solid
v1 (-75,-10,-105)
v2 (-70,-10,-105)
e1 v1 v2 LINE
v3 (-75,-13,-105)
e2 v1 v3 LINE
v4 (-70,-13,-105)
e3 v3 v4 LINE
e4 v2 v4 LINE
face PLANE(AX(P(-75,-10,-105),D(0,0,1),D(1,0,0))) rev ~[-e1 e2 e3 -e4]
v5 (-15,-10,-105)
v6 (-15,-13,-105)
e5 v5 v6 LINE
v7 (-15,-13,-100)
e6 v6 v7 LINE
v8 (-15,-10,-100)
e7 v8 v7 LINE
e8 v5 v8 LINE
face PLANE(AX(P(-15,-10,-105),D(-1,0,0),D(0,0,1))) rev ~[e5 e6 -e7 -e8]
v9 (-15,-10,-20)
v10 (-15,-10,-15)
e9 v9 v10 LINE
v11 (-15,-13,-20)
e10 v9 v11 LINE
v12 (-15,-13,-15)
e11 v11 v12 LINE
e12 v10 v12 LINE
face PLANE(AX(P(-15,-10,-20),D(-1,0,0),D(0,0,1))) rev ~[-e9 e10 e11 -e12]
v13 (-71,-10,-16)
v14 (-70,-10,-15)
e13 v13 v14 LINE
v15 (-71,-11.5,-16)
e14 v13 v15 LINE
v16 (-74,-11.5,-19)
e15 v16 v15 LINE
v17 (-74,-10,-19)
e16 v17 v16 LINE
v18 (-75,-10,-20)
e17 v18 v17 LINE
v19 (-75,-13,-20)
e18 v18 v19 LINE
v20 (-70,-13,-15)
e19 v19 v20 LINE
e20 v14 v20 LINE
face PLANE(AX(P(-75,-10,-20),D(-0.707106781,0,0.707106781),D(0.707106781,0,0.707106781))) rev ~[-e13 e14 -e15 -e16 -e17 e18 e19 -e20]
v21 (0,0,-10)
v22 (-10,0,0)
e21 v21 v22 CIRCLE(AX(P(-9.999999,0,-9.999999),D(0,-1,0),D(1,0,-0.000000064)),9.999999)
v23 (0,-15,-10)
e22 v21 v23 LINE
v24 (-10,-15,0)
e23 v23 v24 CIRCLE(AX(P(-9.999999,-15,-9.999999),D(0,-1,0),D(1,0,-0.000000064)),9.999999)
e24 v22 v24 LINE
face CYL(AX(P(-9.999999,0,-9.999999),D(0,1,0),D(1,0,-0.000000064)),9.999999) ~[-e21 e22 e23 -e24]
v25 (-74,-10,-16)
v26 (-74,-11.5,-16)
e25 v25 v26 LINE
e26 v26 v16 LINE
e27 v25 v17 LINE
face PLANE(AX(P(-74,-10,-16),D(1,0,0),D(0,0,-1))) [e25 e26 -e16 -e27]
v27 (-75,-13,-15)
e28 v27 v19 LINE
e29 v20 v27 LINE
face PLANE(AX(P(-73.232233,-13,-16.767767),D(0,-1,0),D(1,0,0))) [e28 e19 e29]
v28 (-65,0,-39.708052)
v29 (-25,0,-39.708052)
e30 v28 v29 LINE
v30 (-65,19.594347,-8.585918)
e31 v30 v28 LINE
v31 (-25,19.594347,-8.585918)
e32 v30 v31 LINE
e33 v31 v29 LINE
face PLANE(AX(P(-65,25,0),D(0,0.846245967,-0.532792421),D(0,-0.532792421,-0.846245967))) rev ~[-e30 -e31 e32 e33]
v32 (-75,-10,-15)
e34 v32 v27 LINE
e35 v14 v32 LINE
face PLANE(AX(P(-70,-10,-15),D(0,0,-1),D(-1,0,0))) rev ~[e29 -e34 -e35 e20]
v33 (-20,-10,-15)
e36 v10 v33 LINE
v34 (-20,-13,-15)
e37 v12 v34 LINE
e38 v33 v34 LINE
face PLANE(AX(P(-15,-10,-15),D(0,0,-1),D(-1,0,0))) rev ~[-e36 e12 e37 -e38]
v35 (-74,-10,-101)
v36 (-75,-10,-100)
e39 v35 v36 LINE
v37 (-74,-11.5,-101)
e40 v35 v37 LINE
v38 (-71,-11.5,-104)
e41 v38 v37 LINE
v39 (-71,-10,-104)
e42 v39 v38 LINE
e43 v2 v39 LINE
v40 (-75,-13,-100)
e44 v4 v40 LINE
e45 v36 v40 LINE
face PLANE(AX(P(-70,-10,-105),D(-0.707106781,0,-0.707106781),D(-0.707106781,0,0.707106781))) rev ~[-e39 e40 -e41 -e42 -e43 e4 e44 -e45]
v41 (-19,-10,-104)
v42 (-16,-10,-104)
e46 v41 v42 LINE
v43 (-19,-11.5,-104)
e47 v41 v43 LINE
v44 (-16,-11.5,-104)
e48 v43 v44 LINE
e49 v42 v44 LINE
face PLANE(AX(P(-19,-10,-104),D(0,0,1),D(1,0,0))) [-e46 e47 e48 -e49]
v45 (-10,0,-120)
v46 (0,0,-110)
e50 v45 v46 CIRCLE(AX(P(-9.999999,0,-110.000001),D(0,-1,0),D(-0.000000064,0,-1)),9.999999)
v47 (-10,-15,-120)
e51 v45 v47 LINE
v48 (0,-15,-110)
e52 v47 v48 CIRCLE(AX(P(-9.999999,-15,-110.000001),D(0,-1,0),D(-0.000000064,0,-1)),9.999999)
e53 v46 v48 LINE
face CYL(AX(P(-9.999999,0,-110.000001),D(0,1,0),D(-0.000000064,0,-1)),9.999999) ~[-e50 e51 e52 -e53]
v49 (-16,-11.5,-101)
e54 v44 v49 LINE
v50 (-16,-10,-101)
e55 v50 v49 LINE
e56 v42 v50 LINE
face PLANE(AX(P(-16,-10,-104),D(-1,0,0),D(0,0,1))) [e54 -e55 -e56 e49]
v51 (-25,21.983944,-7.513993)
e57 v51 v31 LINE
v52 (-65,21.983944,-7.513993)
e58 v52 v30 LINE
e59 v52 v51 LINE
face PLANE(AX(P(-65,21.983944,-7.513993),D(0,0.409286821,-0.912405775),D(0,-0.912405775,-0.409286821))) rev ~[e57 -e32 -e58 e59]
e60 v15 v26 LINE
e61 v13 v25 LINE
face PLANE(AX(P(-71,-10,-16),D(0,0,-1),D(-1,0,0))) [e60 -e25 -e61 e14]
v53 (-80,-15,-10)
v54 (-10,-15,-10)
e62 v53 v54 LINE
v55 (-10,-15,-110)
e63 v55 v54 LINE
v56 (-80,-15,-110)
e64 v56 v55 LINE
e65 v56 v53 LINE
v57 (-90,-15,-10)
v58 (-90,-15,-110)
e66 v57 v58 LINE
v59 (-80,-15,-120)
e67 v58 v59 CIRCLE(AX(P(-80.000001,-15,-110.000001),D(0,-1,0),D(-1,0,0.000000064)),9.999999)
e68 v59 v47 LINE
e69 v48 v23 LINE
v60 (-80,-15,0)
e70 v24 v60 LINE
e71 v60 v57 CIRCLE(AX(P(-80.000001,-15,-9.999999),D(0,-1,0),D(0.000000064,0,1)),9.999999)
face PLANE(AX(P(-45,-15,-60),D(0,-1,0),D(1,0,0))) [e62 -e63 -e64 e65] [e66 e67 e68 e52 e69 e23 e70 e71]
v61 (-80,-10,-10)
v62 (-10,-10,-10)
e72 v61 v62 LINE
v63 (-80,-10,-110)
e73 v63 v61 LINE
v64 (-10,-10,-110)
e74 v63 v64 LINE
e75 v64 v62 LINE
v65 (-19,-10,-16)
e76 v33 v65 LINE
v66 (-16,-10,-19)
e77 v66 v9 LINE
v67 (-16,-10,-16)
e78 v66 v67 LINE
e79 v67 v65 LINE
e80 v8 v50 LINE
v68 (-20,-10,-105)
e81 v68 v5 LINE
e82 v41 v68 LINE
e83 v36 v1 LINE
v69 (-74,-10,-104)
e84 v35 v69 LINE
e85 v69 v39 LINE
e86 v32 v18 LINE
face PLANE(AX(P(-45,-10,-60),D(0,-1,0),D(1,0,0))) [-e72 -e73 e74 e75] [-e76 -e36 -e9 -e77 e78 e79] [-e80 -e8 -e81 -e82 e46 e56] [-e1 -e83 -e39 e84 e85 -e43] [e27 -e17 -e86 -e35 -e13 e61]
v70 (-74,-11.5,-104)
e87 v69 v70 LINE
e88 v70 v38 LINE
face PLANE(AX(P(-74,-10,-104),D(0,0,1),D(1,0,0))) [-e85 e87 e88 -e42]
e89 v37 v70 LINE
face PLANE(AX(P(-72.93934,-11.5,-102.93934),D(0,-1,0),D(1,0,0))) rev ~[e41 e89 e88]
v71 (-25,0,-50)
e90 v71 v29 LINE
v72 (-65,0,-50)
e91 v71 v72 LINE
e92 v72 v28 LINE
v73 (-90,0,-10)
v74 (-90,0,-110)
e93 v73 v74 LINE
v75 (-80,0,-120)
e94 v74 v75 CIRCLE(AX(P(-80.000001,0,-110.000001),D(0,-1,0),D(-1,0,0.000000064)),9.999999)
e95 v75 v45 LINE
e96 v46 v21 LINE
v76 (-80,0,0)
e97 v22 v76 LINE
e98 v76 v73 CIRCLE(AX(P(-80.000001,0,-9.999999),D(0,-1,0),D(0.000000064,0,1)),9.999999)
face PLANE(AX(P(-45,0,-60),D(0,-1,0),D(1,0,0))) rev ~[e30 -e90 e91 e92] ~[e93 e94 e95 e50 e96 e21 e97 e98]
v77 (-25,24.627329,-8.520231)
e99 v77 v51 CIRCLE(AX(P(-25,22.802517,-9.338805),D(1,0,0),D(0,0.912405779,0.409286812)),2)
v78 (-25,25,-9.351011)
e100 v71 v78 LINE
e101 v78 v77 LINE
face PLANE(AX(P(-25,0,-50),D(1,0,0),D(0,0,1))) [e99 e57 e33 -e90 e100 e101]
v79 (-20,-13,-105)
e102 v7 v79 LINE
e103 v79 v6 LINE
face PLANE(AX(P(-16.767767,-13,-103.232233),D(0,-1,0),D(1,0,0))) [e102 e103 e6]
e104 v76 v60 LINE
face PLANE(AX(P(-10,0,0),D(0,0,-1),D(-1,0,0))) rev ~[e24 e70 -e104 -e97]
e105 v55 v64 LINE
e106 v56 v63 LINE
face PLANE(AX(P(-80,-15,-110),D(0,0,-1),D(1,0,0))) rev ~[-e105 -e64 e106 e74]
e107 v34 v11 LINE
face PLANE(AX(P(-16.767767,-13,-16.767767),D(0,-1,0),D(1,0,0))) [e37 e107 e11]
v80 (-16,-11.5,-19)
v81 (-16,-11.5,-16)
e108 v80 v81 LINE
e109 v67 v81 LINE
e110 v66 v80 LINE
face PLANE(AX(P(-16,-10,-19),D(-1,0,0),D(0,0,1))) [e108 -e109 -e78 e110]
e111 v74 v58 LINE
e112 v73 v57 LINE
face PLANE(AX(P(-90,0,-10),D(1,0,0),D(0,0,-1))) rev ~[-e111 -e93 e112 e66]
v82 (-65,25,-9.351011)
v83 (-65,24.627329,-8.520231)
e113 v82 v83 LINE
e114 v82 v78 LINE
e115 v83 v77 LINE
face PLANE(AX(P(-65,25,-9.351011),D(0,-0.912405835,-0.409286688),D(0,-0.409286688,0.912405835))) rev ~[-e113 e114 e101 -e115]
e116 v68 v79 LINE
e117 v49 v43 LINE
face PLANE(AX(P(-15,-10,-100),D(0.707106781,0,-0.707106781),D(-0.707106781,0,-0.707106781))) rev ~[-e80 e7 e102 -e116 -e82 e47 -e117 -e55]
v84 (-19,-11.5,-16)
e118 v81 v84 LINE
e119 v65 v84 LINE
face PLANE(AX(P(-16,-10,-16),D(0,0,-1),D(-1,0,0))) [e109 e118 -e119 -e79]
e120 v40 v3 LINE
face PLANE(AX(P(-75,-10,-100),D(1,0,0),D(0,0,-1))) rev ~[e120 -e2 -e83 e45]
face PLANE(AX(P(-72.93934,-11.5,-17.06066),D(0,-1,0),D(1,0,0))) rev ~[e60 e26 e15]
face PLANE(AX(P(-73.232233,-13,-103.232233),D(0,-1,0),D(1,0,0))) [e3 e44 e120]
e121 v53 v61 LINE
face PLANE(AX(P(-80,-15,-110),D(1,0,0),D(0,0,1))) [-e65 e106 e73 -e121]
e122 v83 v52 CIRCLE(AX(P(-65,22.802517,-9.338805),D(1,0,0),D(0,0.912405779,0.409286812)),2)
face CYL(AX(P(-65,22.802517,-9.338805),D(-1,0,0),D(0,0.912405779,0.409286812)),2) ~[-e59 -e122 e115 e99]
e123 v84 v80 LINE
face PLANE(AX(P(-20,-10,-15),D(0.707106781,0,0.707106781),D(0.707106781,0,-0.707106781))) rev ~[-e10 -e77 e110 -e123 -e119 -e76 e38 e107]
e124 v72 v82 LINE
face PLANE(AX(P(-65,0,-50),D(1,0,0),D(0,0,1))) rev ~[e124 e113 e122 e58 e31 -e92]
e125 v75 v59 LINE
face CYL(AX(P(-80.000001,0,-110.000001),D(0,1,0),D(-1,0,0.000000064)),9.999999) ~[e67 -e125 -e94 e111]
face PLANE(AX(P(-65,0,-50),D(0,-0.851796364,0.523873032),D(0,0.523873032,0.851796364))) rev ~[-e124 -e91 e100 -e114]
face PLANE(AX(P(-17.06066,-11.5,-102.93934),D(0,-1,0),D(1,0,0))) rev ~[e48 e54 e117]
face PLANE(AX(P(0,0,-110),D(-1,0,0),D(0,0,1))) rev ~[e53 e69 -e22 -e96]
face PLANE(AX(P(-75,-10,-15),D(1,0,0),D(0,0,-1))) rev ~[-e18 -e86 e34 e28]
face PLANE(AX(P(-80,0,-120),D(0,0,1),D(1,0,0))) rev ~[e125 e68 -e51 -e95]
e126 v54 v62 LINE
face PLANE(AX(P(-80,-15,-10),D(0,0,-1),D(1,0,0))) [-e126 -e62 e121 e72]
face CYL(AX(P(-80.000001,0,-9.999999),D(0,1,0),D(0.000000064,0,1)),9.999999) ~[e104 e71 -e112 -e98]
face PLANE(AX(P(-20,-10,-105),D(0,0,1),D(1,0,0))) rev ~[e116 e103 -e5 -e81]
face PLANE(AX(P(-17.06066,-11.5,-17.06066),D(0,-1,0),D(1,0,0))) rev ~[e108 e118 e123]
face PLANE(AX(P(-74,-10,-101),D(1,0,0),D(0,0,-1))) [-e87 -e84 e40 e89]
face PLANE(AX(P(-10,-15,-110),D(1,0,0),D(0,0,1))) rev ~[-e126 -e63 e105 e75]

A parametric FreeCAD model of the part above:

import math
import FreeCAD as App
import Part
import Sketcher

V = App.Vector


def add_polygon(sketch, points):
    """Adds a closed chain of lines whose ends are joined by coincident constraints."""
    first, n = sketch.GeometryCount, len(points)
    for a, b in zip(points, points[1:] + points[:1]):
        sketch.addGeometry(Part.LineSegment(App.Vector(*a, 0), App.Vector(*b, 0)), False)
    for i in range(n):
        sketch.addConstraint(Sketcher.Constraint("Coincident", first + i, 2, first + (i + 1) % n, 1))

doc = App.newDocument("Part")
body = doc.addObject("PartDesign::Body", "Body")

# Sketch on XZ plane
sketch1 = body.newObject("Sketcher::SketchObject", "Sketch")
sketch1.AttachmentSupport = (doc.getObject("XZ_Plane"), [""])
sketch1.MapMode = "FlatFace"
sketch1.addGeometry(Part.ArcOfCircle(Part.Circle(V(-80, -10, 0), V(0, 0, 1), 10), math.radians(90), math.radians(180)), False)
sketch1.addGeometry(Part.LineSegment(V(-90, -10, 0), V(-90, -110, 0)), False)
sketch1.addGeometry(Part.ArcOfCircle(Part.Circle(V(-80, -110, 0), V(0, 0, 1), 10), math.radians(180), math.radians(270)), False)
sketch1.addGeometry(Part.LineSegment(V(-80, -120, 0), V(-10, -120, 0)), False)
sketch1.addGeometry(Part.ArcOfCircle(Part.Circle(V(-10, -110, 0), V(0, 0, 1), 10), math.radians(-90), math.radians(0)), False)
sketch1.addGeometry(Part.LineSegment(V(0, -110, 0), V(0, -10, 0)), False)
sketch1.addGeometry(Part.ArcOfCircle(Part.Circle(V(-10, -10, 0), V(0, 0, 1), 10), math.radians(0), math.radians(90)), False)
sketch1.addGeometry(Part.LineSegment(V(-10, 0, 0), V(-80, 0, 0)), False)
sketch1.addConstraint(Sketcher.Constraint("Tangent", 0, 2, 1, 1))
sketch1.addConstraint(Sketcher.Constraint("Tangent", 1, 2, 2, 1))
sketch1.addConstraint(Sketcher.Constraint("Tangent", 2, 2, 3, 1))
sketch1.addConstraint(Sketcher.Constraint("Tangent", 3, 2, 4, 1))
sketch1.addConstraint(Sketcher.Constraint("Tangent", 4, 2, 5, 1))
sketch1.addConstraint(Sketcher.Constraint("Tangent", 5, 2, 6, 1))
sketch1.addConstraint(Sketcher.Constraint("Tangent", 6, 2, 7, 1))
sketch1.addConstraint(Sketcher.Constraint("Tangent", 7, 2, 0, 1))
sketch1.addConstraint(Sketcher.Constraint("Vertical", 1))
sketch1.addConstraint(Sketcher.Constraint("Horizontal", 3))
sketch1.addConstraint(Sketcher.Constraint("Vertical", 5))
sketch1.addConstraint(Sketcher.Constraint("Horizontal", 7))
sketch1.addConstraint(Sketcher.Constraint("Equal", 0, 2))
sketch1.addConstraint(Sketcher.Constraint("Equal", 2, 4))
sketch1.addConstraint(Sketcher.Constraint("Equal", 4, 6))
sketch1.addConstraint(Sketcher.Constraint("PointOnObject", 4, 2, -2))
sketch1.addConstraint(Sketcher.Constraint("PointOnObject", 6, 2, -1))
sketch1.addConstraint(Sketcher.Constraint("Radius", 0, 9.999999))
sketch1.addConstraint(Sketcher.Constraint("DistanceX", 3, 1, 3, 2, 70.0))
sketch1.addConstraint(Sketcher.Constraint("DistanceY", 1, 2, 1, 1, 100.0))
pad1 = body.newObject("PartDesign::Pad", "Pad")
pad1.Profile = sketch1
pad1.Length = 15

# Sketch on XZ plane
sketch2 = body.newObject("Sketcher::SketchObject", "Sketch001")
sketch2.AttachmentSupport = (doc.getObject("XZ_Plane"), [""])
sketch2.MapMode = "FlatFace"
sketch2.AttachmentOffset = App.Placement(V(0, 0, 15), App.Rotation())
add_polygon(sketch2, [(-80, -10), (-80, -110), (-10, -110), (-10, -10)])  # lines 0-3
sketch2.addConstraint(Sketcher.Constraint("Vertical", 0))
sketch2.addConstraint(Sketcher.Constraint("Horizontal", 1))
sketch2.addConstraint(Sketcher.Constraint("Vertical", 2))
sketch2.addConstraint(Sketcher.Constraint("Horizontal", 3))
sketch2.addConstraint(Sketcher.Constraint("DistanceX", 1, 1, 1, 2, 70.0))
sketch2.addConstraint(Sketcher.Constraint("DistanceY", 0, 2, 0, 1, 100.0))
sketch2.addConstraint(Sketcher.Constraint("DistanceX", 0, 2, -1, 1, 80.0))
sketch2.addConstraint(Sketcher.Constraint("DistanceY", 0, 2, -1, 1, 110.0))
pocket1 = body.newObject("PartDesign::Pocket", "Pocket")
pocket1.Profile = sketch2
pocket1.Length = 5

# Sketch on XZ plane
sketch3 = body.newObject("Sketcher::SketchObject", "Sketch002")
sketch3.AttachmentSupport = (doc.getObject("XZ_Plane"), [""])
sketch3.MapMode = "FlatFace"
add_polygon(sketch3, [(-25, 0), (-25, -50), (-65, -50), (-65, 0)])  # lines 0-3
sketch3.addConstraint(Sketcher.Constraint("Vertical", 0))
sketch3.addConstraint(Sketcher.Constraint("Horizontal", 1))
sketch3.addConstraint(Sketcher.Constraint("Vertical", 2))
sketch3.addConstraint(Sketcher.Constraint("Horizontal", 3))
sketch3.addConstraint(Sketcher.Constraint("PointOnObject", 2, 2, -1))
sketch3.addConstraint(Sketcher.Constraint("DistanceX", 1, 2, 1, 1, 40.0))
sketch3.addConstraint(Sketcher.Constraint("DistanceY", 0, 2, 0, 1, 50.0))
sketch3.addConstraint(Sketcher.Constraint("DistanceX", 0, 2, -1, 1, 25.0))
pad2 = body.newObject("PartDesign::Pad", "Pad001")
pad2.Profile = sketch3
pad2.Length = 25
pad2.Reversed = True

# Sketch on YZ plane
sketch4 = body.newObject("Sketcher::SketchObject", "Sketch003")
sketch4.AttachmentSupport = (doc.getObject("YZ_Plane"), [""])
sketch4.MapMode = "FlatFace"
sketch4.AttachmentOffset = App.Placement(V(0, 0, -65), App.Rotation())
add_polygon(sketch4, [(0, -40), (0, 0), (25, 0)])  # lines 0-2
add_polygon(sketch4, [(25, -9), (25, -50), (0, -50)])  # lines 3-5
sketch4.addConstraint(Sketcher.Constraint("Vertical", 0))
sketch4.addConstraint(Sketcher.Constraint("Horizontal", 1))
sketch4.addConstraint(Sketcher.Constraint("Vertical", 3))
sketch4.addConstraint(Sketcher.Constraint("Horizontal", 4))
sketch4.addConstraint(Sketcher.Constraint("Coincident", 0, 2, -1, 1))
sketch4.addConstraint(Sketcher.Constraint("PointOnObject", 4, 2, -2))
sketch4.addConstraint(Sketcher.Constraint("Vertical", 1, 2, 3, 2))
sketch4.addConstraint(Sketcher.Constraint("DistanceX", 1, 1, 1, 2, 25.0))
sketch4.addConstraint(Sketcher.Constraint("DistanceY", 3, 2, -1, 1, 50.0))
sketch4.addConstraint(Sketcher.Constraint("DistanceY", 3, 2, 3, 1, 40.648989))
sketch4.addConstraint(Sketcher.Constraint("Distance", 2, 46.922589))
pocket2 = body.newObject("PartDesign::Pocket", "Pocket001")
pocket2.Profile = sketch4
pocket2.Length = 40
pocket2.Reversed = True

# Sketch on YZ plane
sketch5 = body.newObject("Sketcher::SketchObject", "Sketch004")
sketch5.AttachmentSupport = (doc.getObject("YZ_Plane"), [""])
sketch5.MapMode = "FlatFace"
sketch5.AttachmentOffset = App.Placement(V(0, 0, -65), App.Rotation())
sketch5.addGeometry(Part.LineSegment(V(19.6, -8.6, 0), V(25, 0, 0)), False)
sketch5.addGeometry(Part.LineSegment(V(25, 0, 0), V(25, -9.4, 0)), False)
sketch5.addGeometry(Part.LineSegment(V(25, -9.4, 0), V(24.6, -8.5, 0)), False)
sketch5.addGeometry(Part.ArcOfCircle(Part.Circle(V(22.8, -9.3, 0), V(0, 0, 1), 2), math.radians(24), math.radians(114)), False)
sketch5.addGeometry(Part.LineSegment(V(22, -7.5, 0), V(19.6, -8.6, 0)), False)
sketch5.addConstraint(Sketcher.Constraint("Coincident", 0, 2, 1, 1))
sketch5.addConstraint(Sketcher.Constraint("Coincident", 1, 2, 2, 1))
sketch5.addConstraint(Sketcher.Constraint("Tangent", 2, 2, 3, 1))
sketch5.addConstraint(Sketcher.Constraint("Tangent", 3, 2, 4, 1))
sketch5.addConstraint(Sketcher.Constraint("Coincident", 4, 2, 0, 1))
sketch5.addConstraint(Sketcher.Constraint("Vertical", 1))
sketch5.addConstraint(Sketcher.Constraint("PointOnObject", 0, 2, -1))
sketch5.addConstraint(Sketcher.Constraint("Perpendicular", 2, 4))
sketch5.addConstraint(Sketcher.Constraint("Radius", 3, 2.0))
sketch5.addConstraint(Sketcher.Constraint("DistanceX", -1, 1, 0, 2, 25.0))
sketch5.addConstraint(Sketcher.Constraint("DistanceY", 1, 2, 1, 1, 9.351011))
sketch5.addConstraint(Sketcher.Constraint("Distance", 0, 10.145889))
sketch5.addConstraint(Sketcher.Constraint("DistanceX", -1, 1, 2, 2, 24.627329))
sketch5.addConstraint(Sketcher.Constraint("DistanceY", 2, 2, -1, 1, 8.520231))
pocket3 = body.newObject("PartDesign::Pocket", "Pocket002")
pocket3.Profile = sketch5
pocket3.Length = 40
pocket3.Reversed = True

# Sketch on XZ plane
sketch6 = body.newObject("Sketcher::SketchObject", "Sketch005")
sketch6.AttachmentSupport = (doc.getObject("XZ_Plane"), [""])
sketch6.MapMode = "FlatFace"
sketch6.AttachmentOffset = App.Placement(V(0, 0, 10), App.Rotation())
add_polygon(sketch6, [(-20, -15), (-15, -20), (-15, -15)])  # lines 0-2
add_polygon(sketch6, [(-70, -105), (-75, -100), (-75, -105)])  # lines 3-5
add_polygon(sketch6, [(-75, -20), (-70, -15), (-75, -15)])  # lines 6-8
add_polygon(sketch6, [(-15, -100), (-20, -105), (-15, -105)])  # lines 9-11
sketch6.addConstraint(Sketcher.Constraint("Vertical", 1))
sketch6.addConstraint(Sketcher.Constraint("Horizontal", 2))
sketch6.addConstraint(Sketcher.Constraint("Vertical", 4))
sketch6.addConstraint(Sketcher.Constraint("Horizontal", 5))
sketch6.addConstraint(Sketcher.Constraint("Horizontal", 7))
sketch6.addConstraint(Sketcher.Constraint("Vertical", 8))
sketch6.addConstraint(Sketcher.Constraint("Horizontal", 10))
sketch6.addConstraint(Sketcher.Constraint("Vertical", 11))
sketch6.addConstraint(Sketcher.Constraint("Parallel", 0, 3))
sketch6.addConstraint(Sketcher.Constraint("Perpendicular", 3, 6))
sketch6.addConstraint(Sketcher.Constraint("Parallel", 6, 9))
sketch6.addConstraint(Sketcher.Constraint("Horizontal", 2, 2, 6, 2))
sketch6.addConstraint(Sketcher.Constraint("Horizontal", 0, 2, 8, 2))
sketch6.addConstraint(Sketcher.Constraint("Horizontal", 5, 2, 9, 2))
sketch6.addConstraint(Sketcher.Constraint("Horizontal", 3, 2, 11, 2))
sketch6.addConstraint(Sketcher.Constraint("Vertical", 5, 2, 6, 2))
sketch6.addConstraint(Sketcher.Constraint("Vertical", 4, 2, 7, 2))
sketch6.addConstraint(Sketcher.Constraint("Vertical", 2, 2, 9, 2))
sketch6.addConstraint(Sketcher.Constraint("Vertical", 1, 2, 10, 2))
sketch6.addConstraint(Sketcher.Constraint("DistanceX", 2, 2, 2, 1, 5.0))
sketch6.addConstraint(Sketcher.Constraint("DistanceX", 0, 2, -1, 1, 15.0))
sketch6.addConstraint(Sketcher.Constraint("DistanceY", 0, 2, -1, 1, 20.0))
sketch6.addConstraint(Sketcher.Constraint("DistanceX", 3, 2, -1, 1, 75.0))
sketch6.addConstraint(Sketcher.Constraint("DistanceY", 3, 2, -1, 1, 100.0))
pad3 = body.newObject("PartDesign::Pad", "Pad002")
pad3.Profile = sketch6
pad3.Length = 3

# Sketch on XZ plane
sketch7 = body.newObject("Sketcher::SketchObject", "Sketch006")
sketch7.AttachmentSupport = (doc.getObject("XZ_Plane"), [""])
sketch7.MapMode = "FlatFace"
sketch7.AttachmentOffset = App.Placement(V(0, 0, 10), App.Rotation())
add_polygon(sketch7, [(-74, -19), (-71, -16), (-74, -16)])  # lines 0-2
add_polygon(sketch7, [(-19, -16), (-16, -19), (-16, -16)])  # lines 3-5
add_polygon(sketch7, [(-71, -104), (-74, -101), (-74, -104)])  # lines 6-8
add_polygon(sketch7, [(-16, -101), (-19, -104), (-16, -104)])  # lines 9-11
sketch7.addConstraint(Sketcher.Constraint("Horizontal", 1))
sketch7.addConstraint(Sketcher.Constraint("Vertical", 2))
sketch7.addConstraint(Sketcher.Constraint("Vertical", 4))
sketch7.addConstraint(Sketcher.Constraint("Horizontal", 5))
sketch7.addConstraint(Sketcher.Constraint("Vertical", 7))
sketch7.addConstraint(Sketcher.Constraint("Horizontal", 8))
sketch7.addConstraint(Sketcher.Constraint("Horizontal", 10))
sketch7.addConstraint(Sketcher.Constraint("Vertical", 11))
sketch7.addConstraint(Sketcher.Constraint("Perpendicular", 0, 3))
sketch7.addConstraint(Sketcher.Constraint("Parallel", 3, 6))
sketch7.addConstraint(Sketcher.Constraint("Perpendicular", 6, 9))
sketch7.addConstraint(Sketcher.Constraint("Horizontal", 2, 2, 3, 2))
sketch7.addConstraint(Sketcher.Constraint("Horizontal", 1, 2, 4, 2))
sketch7.addConstraint(Sketcher.Constraint("Horizontal", 8, 2, 9, 2))
sketch7.addConstraint(Sketcher.Constraint("Horizontal", 6, 2, 11, 2))
sketch7.addConstraint(Sketcher.Constraint("Vertical", 2, 2, 6, 2))
sketch7.addConstraint(Sketcher.Constraint("Vertical", 0, 2, 8, 2))
sketch7.addConstraint(Sketcher.Constraint("Vertical", 5, 2, 9, 2))
sketch7.addConstraint(Sketcher.Constraint("Vertical", 4, 2, 10, 2))
sketch7.addConstraint(Sketcher.Constraint("DistanceX", 1, 2, 1, 1, 3.0))
sketch7.addConstraint(Sketcher.Constraint("DistanceX", 0, 2, -1, 1, 71.0))
sketch7.addConstraint(Sketcher.Constraint("DistanceY", 0, 2, -1, 1, 16.0))
sketch7.addConstraint(Sketcher.Constraint("DistanceX", 3, 2, -1, 1, 16.0))
sketch7.addConstraint(Sketcher.Constraint("DistanceY", 6, 2, -1, 1, 101.0))
pocket4 = body.newObject("PartDesign::Pocket", "Pocket003")
pocket4.Profile = sketch7
pocket4.Length = 1.5
pocket4.Reversed = True

# Sketch on XZ plane
sketch8 = body.newObject("Sketcher::SketchObject", "Sketch007")
sketch8.AttachmentSupport = (doc.getObject("XZ_Plane"), [""])
sketch8.MapMode = "FlatFace"
sketch8.AttachmentOffset = App.Placement(V(0, 0, 10), App.Rotation())
add_polygon(sketch8, [(-74, -19), (-71, -16), (-74, -16)])  # lines 0-2
add_polygon(sketch8, [(-19, -16), (-16, -19), (-16, -16)])  # lines 3-5
add_polygon(sketch8, [(-71, -104), (-74, -101), (-74, -104)])  # lines 6-8
add_polygon(sketch8, [(-16, -101), (-19, -104), (-16, -104)])  # lines 9-11
sketch8.addConstraint(Sketcher.Constraint("Horizontal", 1))
sketch8.addConstraint(Sketcher.Constraint("Vertical", 2))
sketch8.addConstraint(Sketcher.Constraint("Vertical", 4))
sketch8.addConstraint(Sketcher.Constraint("Horizontal", 5))
sketch8.addConstraint(Sketcher.Constraint("Vertical", 7))
sketch8.addConstraint(Sketcher.Constraint("Horizontal", 8))
sketch8.addConstraint(Sketcher.Constraint("Horizontal", 10))
sketch8.addConstraint(Sketcher.Constraint("Vertical", 11))
sketch8.addConstraint(Sketcher.Constraint("Perpendicular", 0, 3))
sketch8.addConstraint(Sketcher.Constraint("Parallel", 3, 6))
sketch8.addConstraint(Sketcher.Constraint("Perpendicular", 6, 9))
sketch8.addConstraint(Sketcher.Constraint("Horizontal", 2, 2, 3, 2))
sketch8.addConstraint(Sketcher.Constraint("Horizontal", 1, 2, 4, 2))
sketch8.addConstraint(Sketcher.Constraint("Horizontal", 8, 2, 9, 2))
sketch8.addConstraint(Sketcher.Constraint("Horizontal", 6, 2, 11, 2))
sketch8.addConstraint(Sketcher.Constraint("Vertical", 2, 2, 6, 2))
sketch8.addConstraint(Sketcher.Constraint("Vertical", 0, 2, 8, 2))
sketch8.addConstraint(Sketcher.Constraint("Vertical", 5, 2, 9, 2))
sketch8.addConstraint(Sketcher.Constraint("Vertical", 4, 2, 10, 2))
sketch8.addConstraint(Sketcher.Constraint("DistanceX", 1, 2, 1, 1, 3.0))
sketch8.addConstraint(Sketcher.Constraint("DistanceX", 0, 2, -1, 1, 71.0))
sketch8.addConstraint(Sketcher.Constraint("DistanceY", 0, 2, -1, 1, 16.0))
sketch8.addConstraint(Sketcher.Constraint("DistanceX", 3, 2, -1, 1, 16.0))
sketch8.addConstraint(Sketcher.Constraint("DistanceY", 6, 2, -1, 1, 101.0))
pocket5 = body.newObject("PartDesign::Pocket", "Pocket004")
pocket5.Profile = sketch8
pocket5.Length = 1.5
pocket5.Reversed = True

doc.recompute()
